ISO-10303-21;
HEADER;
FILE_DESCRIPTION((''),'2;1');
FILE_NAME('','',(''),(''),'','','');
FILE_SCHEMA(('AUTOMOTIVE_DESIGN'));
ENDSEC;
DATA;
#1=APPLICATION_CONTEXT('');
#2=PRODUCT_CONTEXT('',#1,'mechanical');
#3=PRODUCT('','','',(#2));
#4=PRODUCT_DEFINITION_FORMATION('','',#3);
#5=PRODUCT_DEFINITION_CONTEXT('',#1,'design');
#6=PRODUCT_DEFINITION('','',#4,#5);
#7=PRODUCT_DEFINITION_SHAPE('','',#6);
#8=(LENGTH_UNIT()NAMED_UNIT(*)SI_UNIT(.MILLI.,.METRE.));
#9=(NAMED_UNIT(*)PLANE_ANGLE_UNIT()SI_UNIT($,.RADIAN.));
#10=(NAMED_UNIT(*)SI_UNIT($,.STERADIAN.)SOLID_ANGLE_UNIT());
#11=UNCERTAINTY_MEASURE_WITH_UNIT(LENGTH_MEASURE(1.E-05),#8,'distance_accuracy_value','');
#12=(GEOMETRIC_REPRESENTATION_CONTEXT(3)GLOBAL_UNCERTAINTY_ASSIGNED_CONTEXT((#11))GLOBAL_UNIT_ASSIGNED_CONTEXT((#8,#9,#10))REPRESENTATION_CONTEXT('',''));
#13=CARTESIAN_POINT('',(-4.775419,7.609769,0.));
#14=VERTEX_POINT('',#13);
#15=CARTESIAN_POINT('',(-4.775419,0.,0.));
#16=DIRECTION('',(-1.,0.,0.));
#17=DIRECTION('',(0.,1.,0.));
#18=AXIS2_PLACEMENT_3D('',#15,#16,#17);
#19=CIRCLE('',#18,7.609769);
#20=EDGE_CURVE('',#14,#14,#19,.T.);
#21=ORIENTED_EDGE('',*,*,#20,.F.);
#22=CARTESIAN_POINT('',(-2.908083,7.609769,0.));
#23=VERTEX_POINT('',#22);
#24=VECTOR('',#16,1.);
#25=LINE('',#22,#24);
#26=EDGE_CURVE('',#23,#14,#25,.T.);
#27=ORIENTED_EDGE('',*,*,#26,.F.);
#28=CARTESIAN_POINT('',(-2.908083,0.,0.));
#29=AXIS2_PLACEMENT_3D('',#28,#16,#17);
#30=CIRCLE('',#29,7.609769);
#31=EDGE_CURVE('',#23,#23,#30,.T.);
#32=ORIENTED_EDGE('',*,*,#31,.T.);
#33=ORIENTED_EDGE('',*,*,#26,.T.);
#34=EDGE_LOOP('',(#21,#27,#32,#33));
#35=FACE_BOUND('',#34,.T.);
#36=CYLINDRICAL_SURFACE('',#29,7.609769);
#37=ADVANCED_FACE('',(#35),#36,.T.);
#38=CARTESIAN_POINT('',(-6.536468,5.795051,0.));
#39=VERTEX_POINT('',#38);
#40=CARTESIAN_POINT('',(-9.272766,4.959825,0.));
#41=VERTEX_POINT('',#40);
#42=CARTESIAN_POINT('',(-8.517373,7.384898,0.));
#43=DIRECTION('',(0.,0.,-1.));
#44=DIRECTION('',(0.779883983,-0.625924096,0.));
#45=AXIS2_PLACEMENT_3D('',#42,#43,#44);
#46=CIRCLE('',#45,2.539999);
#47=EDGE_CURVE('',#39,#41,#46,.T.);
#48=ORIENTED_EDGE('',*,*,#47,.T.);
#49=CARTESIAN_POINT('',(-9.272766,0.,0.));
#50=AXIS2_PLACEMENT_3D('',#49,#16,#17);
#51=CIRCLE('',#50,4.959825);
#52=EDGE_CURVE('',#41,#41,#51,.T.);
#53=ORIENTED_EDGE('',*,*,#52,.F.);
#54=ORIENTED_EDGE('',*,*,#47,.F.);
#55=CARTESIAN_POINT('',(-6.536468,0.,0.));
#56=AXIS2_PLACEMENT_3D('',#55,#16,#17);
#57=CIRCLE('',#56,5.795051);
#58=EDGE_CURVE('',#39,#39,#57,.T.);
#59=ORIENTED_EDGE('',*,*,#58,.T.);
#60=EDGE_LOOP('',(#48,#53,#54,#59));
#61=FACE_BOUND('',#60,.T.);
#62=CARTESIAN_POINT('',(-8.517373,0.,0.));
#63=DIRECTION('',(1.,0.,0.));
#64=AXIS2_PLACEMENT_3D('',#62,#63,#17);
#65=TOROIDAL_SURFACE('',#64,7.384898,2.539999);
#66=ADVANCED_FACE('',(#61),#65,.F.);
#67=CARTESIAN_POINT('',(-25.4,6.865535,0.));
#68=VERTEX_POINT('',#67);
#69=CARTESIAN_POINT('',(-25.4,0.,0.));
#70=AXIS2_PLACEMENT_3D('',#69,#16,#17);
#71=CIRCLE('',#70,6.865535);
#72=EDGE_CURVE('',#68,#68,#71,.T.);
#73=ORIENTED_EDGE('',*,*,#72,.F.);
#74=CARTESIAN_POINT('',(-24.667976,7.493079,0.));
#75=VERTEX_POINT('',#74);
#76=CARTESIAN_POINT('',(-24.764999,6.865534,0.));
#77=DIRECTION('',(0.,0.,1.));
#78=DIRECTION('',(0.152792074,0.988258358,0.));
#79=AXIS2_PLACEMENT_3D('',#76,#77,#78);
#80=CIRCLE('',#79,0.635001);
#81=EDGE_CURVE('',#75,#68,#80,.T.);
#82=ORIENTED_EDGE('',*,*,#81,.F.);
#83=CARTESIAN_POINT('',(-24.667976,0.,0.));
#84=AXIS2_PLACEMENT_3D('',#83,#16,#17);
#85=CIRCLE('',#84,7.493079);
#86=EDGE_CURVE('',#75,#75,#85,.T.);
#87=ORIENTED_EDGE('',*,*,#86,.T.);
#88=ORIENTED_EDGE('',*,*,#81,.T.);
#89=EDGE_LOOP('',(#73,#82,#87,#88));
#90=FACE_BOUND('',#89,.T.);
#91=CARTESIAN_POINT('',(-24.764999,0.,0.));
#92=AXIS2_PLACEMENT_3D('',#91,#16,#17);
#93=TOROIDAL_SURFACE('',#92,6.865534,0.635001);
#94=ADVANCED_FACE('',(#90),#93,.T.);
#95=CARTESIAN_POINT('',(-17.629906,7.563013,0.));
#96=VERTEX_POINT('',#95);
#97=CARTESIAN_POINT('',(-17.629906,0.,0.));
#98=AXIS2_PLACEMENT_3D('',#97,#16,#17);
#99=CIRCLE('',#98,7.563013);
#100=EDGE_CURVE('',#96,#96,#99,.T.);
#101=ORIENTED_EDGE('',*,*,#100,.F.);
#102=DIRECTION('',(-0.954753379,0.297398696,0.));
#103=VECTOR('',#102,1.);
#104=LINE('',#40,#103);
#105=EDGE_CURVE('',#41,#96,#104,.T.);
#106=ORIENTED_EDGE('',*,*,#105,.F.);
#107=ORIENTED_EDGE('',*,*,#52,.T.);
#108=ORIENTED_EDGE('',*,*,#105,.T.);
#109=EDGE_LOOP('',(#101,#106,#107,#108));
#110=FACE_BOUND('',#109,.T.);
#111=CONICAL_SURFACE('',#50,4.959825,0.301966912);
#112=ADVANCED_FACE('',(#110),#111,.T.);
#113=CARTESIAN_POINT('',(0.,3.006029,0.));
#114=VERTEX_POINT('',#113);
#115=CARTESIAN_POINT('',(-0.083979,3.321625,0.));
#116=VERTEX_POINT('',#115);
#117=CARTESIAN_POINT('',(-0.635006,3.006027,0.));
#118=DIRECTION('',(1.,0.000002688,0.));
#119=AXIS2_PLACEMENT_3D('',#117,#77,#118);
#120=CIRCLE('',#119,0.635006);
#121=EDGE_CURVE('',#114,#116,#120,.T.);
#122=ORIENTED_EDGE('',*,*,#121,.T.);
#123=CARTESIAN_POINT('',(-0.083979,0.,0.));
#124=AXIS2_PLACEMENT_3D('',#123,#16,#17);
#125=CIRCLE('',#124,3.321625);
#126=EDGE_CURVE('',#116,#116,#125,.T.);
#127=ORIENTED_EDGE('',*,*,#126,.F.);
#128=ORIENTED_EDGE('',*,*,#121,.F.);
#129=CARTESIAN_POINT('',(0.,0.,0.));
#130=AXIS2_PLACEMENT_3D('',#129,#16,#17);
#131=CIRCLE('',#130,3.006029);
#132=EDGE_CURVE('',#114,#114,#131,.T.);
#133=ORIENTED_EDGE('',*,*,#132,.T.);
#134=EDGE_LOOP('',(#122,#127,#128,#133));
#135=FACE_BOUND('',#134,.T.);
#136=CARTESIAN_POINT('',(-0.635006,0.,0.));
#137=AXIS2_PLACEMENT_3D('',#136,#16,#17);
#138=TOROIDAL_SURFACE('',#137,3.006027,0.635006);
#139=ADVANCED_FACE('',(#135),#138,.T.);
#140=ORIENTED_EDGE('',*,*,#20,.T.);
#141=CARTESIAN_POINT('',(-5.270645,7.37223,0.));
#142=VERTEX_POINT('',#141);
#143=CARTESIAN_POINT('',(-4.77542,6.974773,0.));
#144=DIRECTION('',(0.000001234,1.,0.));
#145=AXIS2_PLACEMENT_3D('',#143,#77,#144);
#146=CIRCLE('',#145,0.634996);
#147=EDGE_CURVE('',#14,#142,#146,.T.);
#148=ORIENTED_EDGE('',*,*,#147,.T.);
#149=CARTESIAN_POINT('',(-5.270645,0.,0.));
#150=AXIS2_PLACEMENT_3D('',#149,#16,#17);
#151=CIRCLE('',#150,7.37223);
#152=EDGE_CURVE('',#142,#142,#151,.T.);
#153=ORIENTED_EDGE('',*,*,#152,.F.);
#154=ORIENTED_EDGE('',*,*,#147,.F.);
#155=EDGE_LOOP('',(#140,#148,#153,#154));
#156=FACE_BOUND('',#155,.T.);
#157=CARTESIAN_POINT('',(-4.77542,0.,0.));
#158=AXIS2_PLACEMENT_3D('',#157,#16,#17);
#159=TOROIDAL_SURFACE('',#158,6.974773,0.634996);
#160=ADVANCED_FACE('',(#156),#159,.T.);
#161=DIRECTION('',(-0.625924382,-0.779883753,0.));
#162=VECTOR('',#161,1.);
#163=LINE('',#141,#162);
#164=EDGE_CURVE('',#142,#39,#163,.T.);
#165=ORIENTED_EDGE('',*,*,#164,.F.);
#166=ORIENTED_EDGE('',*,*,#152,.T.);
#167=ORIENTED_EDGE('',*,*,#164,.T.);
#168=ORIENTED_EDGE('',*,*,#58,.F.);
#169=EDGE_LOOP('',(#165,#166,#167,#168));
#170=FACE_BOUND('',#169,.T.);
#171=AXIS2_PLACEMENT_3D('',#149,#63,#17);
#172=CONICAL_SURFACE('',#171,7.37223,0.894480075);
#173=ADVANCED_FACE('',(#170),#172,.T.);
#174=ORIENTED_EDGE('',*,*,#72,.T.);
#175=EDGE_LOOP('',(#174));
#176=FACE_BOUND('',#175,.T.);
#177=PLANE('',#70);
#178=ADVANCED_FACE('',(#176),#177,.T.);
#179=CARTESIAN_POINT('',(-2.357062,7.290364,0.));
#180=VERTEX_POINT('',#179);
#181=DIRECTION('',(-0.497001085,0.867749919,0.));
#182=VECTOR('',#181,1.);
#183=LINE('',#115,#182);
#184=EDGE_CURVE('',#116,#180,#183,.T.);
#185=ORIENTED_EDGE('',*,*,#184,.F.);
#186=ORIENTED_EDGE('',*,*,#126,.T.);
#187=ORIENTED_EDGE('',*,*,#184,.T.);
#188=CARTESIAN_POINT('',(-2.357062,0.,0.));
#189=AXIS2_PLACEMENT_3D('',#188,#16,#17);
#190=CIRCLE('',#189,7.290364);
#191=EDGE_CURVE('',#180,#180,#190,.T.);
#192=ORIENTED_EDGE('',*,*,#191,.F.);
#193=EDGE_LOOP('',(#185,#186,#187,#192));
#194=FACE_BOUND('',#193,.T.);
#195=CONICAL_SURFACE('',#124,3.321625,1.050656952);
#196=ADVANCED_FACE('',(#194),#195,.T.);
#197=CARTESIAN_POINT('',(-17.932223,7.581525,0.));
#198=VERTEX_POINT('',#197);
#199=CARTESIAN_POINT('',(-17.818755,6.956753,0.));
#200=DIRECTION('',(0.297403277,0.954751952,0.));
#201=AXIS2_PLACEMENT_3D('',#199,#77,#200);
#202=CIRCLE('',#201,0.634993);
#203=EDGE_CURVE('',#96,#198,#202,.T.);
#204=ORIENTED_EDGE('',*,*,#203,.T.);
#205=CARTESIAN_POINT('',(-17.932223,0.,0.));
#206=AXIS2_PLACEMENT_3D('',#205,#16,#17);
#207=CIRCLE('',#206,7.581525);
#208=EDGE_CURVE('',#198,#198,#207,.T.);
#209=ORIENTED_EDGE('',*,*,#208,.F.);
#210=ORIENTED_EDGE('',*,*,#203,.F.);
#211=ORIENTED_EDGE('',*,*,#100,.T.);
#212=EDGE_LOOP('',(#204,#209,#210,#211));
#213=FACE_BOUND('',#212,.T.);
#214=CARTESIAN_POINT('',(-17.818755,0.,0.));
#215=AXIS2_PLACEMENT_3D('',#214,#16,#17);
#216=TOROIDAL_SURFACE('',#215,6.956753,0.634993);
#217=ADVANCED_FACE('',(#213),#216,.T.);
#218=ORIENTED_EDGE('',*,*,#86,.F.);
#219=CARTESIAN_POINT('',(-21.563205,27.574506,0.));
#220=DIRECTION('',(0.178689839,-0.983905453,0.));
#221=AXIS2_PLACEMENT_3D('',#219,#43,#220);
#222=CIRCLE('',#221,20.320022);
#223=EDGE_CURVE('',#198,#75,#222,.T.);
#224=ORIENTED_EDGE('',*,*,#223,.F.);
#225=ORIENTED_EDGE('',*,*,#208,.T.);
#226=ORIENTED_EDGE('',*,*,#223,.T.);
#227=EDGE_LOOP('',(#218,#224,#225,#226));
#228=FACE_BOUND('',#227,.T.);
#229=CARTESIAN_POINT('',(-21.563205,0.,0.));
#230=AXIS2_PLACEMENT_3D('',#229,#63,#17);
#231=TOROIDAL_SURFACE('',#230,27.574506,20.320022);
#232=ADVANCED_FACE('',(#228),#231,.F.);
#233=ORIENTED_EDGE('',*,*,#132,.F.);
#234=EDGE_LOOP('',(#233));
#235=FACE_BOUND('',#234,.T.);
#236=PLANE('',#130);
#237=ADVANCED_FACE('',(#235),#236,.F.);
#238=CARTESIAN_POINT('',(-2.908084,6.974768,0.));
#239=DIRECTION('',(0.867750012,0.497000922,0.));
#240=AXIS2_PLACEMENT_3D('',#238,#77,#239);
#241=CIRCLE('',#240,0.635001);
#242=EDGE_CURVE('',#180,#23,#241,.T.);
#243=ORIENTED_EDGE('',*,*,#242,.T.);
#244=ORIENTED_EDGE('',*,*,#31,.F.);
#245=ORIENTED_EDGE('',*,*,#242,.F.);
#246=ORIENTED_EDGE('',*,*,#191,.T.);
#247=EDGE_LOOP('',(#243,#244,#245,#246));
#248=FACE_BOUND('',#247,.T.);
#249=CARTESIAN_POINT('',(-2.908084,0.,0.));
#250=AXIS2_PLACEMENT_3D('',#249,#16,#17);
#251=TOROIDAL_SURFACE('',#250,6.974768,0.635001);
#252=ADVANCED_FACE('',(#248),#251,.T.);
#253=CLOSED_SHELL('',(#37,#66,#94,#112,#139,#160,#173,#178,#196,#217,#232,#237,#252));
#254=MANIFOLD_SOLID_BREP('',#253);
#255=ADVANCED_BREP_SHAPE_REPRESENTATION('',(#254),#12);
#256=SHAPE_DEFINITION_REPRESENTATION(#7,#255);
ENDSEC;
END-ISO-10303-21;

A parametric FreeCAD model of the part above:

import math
import FreeCAD as App
import Part
import Sketcher

V = App.Vector
Q = App.Units.Quantity

doc = App.newDocument("Part")
body = doc.addObject("PartDesign::Body", "Body")

sketch1 = doc.addObject("Sketcher::SketchObject", "Sketch")
body.addObject(sketch1)
sketch1.AttachmentSupport = (doc.XY_Plane, [""])
sketch1.MapMode = "FlatFace"
sketch1.addGeometry([
    Part.LineSegment(V(-25.4, 0, 0), V(0, 0, 0)),
    Part.LineSegment(V(0, 0, 0), V(0, 3.006029, 0)),
    Part.ArcOfCircle(Part.Circle(V(-0.635006, 3.006027, 0), V(0, 0, 1), 0.635006), math.radians(0.000154), math.radians(29.801676)),
    Part.LineSegment(V(-0.083979, 3.321625, 0), V(-2.357062, 7.290364, 0)),
    Part.ArcOfCircle(Part.Circle(V(-2.908084, 6.974768, 0), V(0, 0, 1), 0.635001), math.radians(29.80178), math.radians(89.999886)),
    Part.LineSegment(V(-2.908083, 7.609769, 0), V(-4.775419, 7.609769, 0)),
    Part.ArcOfCircle(Part.Circle(V(-4.77542, 6.974773, 0), V(0, 0, 1), 0.634996), math.radians(89.999929), math.radians(141.250205)),
    Part.LineSegment(V(-5.270645, 7.37223, 0), V(-6.536468, 5.795051, 0)),
    Part.ArcOfCircle(Part.Circle(V(-8.517373, 7.384898, 0), V(0, 0, 1), 2.539999), math.radians(-107.301444), math.radians(-38.750046)),
    Part.LineSegment(V(-9.272766, 4.959825, 0), V(-17.629906, 7.563013, 0)),
    Part.ArcOfCircle(Part.Circle(V(-17.818755, 6.956753, 0), V(0, 0, 1), 0.634993), math.radians(72.698296), math.radians(100.293585)),
    Part.ArcOfCircle(Part.Circle(V(-21.563205, 27.574506, 0), V(0, 0, 1), 20.320022), math.radians(-98.788861), math.radians(-79.706544)),
    Part.ArcOfCircle(Part.Circle(V(-24.764999, 6.865534, 0), V(0, 0, 1), 0.635001), math.radians(81.211234), math.radians(179.999915)),
    Part.LineSegment(V(-25.4, 6.865535, 0), V(-25.4, 0, 0)),
], False)
sketch1.addConstraint([
    Sketcher.Constraint("Coincident", 0, 2, 1, 1),
    Sketcher.Constraint("Coincident", 1, 2, 2, 1),
    Sketcher.Constraint("Coincident", 2, 2, 3, 1),
    Sketcher.Constraint("Coincident", 3, 2, 4, 1),
    Sketcher.Constraint("Coincident", 4, 2, 5, 1),
    Sketcher.Constraint("Coincident", 5, 2, 6, 1),
    Sketcher.Constraint("Coincident", 6, 2, 7, 1),
    Sketcher.Constraint("Coincident", 7, 2, 8, 2),
    Sketcher.Constraint("Coincident", 8, 1, 9, 1),
    Sketcher.Constraint("Coincident", 9, 2, 10, 1),
    Sketcher.Constraint("Coincident", 10, 2, 11, 2),
    Sketcher.Constraint("Coincident", 11, 1, 12, 1),
    Sketcher.Constraint("Coincident", 12, 2, 13, 1),
    Sketcher.Constraint("Coincident", 13, 2, 0, 1),
    Sketcher.Constraint("Horizontal", 0),
    Sketcher.Constraint("Vertical", 1),
    Sketcher.Constraint("Horizontal", 5),
    Sketcher.Constraint("Vertical", 13),
    Sketcher.Constraint("Coincident", 0, 2, -1, 1),
    Sketcher.Constraint("Radius", 8, Q("0.1 in")),
    Sketcher.Constraint("DistanceX", 0, 1, 0, 2, Q("1 in")),
    Sketcher.Constraint("Radius", 4, Q("0.025 in")),
    Sketcher.Constraint("Radius", 6, Q("0.0249999 in")),
    Sketcher.Constraint("Radius", 12, Q("0.025 in")),
    Sketcher.Constraint("Radius", 2, Q("0.635006 mm")),
    Sketcher.Constraint("Radius", 10, Q("0.634993 mm")),
    Sketcher.Constraint("Radius", 11, Q("20.320022 mm")),
    Sketcher.Constraint("DistanceY", 1, 1, 1, 2, Q("3.006029 mm")),
    Sketcher.Constraint("DistanceX", 11, 3, 2, 3, Q("20.928198 mm")),
    Sketcher.Constraint("DistanceX", 8, 1, 7, 2, Q("2.736298 mm")),
    Sketcher.Constraint("DistanceY", 8, 1, 10, 2, Q("2.6217 mm")),
    Sketcher.Constraint("DistanceX", 5, 2, 5, 1, Q("1.867336 mm")),
    Sketcher.Constraint("DistanceY", 13, 2, 13, 1, Q("6.865535 mm")),
    Sketcher.Constraint("DistanceX", 6, 3, -1, 1, Q("4.77542 mm")),
    Sketcher.Constraint("DistanceX", 2, 2, -1, 1, Q("0.083979 mm")),
    Sketcher.Constraint("DistanceX", 3, 2, -1, 1, Q("2.357062 mm")),
    Sketcher.Constraint("DistanceY", -1, 1, 4, 2, Q("7.609769 mm")),
    Sketcher.Constraint("DistanceX", 5, 2, -1, 1, Q("4.775419 mm")),
    Sketcher.Constraint("DistanceY", -1, 1, 6, 2, Q("7.37223 mm")),
    Sketcher.Constraint("DistanceX", 7, 2, -1, 1, Q("6.536468 mm")),
    Sketcher.Constraint("DistanceY", -1, 1, 7, 2, Q("5.795051 mm")),
    Sketcher.Constraint("DistanceY", -1, 1, 11, 1, Q("7.493079 mm")),
    Sketcher.Constraint("DistanceY", 2, 3, 4, 3, Q("3.968741 mm")),
    Sketcher.Constraint("DistanceX", 8, 3, 4, 3, Q("5.609289 mm")),
    Sketcher.Constraint("DistanceY", 4, 3, 8, 3, Q("0.41013 mm")),
    Sketcher.Constraint("DistanceY", 10, 3, 6, 3, Q("0.01802 mm")),
    Sketcher.Constraint("DistanceX", 10, 3, 4, 3, Q("14.910671 mm")),
    Sketcher.Constraint("DistanceX", 10, 3, 9, 2, Q("0.188849 mm")),
])
revolution = doc.addObject("PartDesign::Revolution", "Revolution")
body.addObject(revolution)
revolution.Profile = sketch1
revolution.ReferenceAxis = (sketch1, ["H_Axis"])
revolution.Angle = 360

doc.recompute()
